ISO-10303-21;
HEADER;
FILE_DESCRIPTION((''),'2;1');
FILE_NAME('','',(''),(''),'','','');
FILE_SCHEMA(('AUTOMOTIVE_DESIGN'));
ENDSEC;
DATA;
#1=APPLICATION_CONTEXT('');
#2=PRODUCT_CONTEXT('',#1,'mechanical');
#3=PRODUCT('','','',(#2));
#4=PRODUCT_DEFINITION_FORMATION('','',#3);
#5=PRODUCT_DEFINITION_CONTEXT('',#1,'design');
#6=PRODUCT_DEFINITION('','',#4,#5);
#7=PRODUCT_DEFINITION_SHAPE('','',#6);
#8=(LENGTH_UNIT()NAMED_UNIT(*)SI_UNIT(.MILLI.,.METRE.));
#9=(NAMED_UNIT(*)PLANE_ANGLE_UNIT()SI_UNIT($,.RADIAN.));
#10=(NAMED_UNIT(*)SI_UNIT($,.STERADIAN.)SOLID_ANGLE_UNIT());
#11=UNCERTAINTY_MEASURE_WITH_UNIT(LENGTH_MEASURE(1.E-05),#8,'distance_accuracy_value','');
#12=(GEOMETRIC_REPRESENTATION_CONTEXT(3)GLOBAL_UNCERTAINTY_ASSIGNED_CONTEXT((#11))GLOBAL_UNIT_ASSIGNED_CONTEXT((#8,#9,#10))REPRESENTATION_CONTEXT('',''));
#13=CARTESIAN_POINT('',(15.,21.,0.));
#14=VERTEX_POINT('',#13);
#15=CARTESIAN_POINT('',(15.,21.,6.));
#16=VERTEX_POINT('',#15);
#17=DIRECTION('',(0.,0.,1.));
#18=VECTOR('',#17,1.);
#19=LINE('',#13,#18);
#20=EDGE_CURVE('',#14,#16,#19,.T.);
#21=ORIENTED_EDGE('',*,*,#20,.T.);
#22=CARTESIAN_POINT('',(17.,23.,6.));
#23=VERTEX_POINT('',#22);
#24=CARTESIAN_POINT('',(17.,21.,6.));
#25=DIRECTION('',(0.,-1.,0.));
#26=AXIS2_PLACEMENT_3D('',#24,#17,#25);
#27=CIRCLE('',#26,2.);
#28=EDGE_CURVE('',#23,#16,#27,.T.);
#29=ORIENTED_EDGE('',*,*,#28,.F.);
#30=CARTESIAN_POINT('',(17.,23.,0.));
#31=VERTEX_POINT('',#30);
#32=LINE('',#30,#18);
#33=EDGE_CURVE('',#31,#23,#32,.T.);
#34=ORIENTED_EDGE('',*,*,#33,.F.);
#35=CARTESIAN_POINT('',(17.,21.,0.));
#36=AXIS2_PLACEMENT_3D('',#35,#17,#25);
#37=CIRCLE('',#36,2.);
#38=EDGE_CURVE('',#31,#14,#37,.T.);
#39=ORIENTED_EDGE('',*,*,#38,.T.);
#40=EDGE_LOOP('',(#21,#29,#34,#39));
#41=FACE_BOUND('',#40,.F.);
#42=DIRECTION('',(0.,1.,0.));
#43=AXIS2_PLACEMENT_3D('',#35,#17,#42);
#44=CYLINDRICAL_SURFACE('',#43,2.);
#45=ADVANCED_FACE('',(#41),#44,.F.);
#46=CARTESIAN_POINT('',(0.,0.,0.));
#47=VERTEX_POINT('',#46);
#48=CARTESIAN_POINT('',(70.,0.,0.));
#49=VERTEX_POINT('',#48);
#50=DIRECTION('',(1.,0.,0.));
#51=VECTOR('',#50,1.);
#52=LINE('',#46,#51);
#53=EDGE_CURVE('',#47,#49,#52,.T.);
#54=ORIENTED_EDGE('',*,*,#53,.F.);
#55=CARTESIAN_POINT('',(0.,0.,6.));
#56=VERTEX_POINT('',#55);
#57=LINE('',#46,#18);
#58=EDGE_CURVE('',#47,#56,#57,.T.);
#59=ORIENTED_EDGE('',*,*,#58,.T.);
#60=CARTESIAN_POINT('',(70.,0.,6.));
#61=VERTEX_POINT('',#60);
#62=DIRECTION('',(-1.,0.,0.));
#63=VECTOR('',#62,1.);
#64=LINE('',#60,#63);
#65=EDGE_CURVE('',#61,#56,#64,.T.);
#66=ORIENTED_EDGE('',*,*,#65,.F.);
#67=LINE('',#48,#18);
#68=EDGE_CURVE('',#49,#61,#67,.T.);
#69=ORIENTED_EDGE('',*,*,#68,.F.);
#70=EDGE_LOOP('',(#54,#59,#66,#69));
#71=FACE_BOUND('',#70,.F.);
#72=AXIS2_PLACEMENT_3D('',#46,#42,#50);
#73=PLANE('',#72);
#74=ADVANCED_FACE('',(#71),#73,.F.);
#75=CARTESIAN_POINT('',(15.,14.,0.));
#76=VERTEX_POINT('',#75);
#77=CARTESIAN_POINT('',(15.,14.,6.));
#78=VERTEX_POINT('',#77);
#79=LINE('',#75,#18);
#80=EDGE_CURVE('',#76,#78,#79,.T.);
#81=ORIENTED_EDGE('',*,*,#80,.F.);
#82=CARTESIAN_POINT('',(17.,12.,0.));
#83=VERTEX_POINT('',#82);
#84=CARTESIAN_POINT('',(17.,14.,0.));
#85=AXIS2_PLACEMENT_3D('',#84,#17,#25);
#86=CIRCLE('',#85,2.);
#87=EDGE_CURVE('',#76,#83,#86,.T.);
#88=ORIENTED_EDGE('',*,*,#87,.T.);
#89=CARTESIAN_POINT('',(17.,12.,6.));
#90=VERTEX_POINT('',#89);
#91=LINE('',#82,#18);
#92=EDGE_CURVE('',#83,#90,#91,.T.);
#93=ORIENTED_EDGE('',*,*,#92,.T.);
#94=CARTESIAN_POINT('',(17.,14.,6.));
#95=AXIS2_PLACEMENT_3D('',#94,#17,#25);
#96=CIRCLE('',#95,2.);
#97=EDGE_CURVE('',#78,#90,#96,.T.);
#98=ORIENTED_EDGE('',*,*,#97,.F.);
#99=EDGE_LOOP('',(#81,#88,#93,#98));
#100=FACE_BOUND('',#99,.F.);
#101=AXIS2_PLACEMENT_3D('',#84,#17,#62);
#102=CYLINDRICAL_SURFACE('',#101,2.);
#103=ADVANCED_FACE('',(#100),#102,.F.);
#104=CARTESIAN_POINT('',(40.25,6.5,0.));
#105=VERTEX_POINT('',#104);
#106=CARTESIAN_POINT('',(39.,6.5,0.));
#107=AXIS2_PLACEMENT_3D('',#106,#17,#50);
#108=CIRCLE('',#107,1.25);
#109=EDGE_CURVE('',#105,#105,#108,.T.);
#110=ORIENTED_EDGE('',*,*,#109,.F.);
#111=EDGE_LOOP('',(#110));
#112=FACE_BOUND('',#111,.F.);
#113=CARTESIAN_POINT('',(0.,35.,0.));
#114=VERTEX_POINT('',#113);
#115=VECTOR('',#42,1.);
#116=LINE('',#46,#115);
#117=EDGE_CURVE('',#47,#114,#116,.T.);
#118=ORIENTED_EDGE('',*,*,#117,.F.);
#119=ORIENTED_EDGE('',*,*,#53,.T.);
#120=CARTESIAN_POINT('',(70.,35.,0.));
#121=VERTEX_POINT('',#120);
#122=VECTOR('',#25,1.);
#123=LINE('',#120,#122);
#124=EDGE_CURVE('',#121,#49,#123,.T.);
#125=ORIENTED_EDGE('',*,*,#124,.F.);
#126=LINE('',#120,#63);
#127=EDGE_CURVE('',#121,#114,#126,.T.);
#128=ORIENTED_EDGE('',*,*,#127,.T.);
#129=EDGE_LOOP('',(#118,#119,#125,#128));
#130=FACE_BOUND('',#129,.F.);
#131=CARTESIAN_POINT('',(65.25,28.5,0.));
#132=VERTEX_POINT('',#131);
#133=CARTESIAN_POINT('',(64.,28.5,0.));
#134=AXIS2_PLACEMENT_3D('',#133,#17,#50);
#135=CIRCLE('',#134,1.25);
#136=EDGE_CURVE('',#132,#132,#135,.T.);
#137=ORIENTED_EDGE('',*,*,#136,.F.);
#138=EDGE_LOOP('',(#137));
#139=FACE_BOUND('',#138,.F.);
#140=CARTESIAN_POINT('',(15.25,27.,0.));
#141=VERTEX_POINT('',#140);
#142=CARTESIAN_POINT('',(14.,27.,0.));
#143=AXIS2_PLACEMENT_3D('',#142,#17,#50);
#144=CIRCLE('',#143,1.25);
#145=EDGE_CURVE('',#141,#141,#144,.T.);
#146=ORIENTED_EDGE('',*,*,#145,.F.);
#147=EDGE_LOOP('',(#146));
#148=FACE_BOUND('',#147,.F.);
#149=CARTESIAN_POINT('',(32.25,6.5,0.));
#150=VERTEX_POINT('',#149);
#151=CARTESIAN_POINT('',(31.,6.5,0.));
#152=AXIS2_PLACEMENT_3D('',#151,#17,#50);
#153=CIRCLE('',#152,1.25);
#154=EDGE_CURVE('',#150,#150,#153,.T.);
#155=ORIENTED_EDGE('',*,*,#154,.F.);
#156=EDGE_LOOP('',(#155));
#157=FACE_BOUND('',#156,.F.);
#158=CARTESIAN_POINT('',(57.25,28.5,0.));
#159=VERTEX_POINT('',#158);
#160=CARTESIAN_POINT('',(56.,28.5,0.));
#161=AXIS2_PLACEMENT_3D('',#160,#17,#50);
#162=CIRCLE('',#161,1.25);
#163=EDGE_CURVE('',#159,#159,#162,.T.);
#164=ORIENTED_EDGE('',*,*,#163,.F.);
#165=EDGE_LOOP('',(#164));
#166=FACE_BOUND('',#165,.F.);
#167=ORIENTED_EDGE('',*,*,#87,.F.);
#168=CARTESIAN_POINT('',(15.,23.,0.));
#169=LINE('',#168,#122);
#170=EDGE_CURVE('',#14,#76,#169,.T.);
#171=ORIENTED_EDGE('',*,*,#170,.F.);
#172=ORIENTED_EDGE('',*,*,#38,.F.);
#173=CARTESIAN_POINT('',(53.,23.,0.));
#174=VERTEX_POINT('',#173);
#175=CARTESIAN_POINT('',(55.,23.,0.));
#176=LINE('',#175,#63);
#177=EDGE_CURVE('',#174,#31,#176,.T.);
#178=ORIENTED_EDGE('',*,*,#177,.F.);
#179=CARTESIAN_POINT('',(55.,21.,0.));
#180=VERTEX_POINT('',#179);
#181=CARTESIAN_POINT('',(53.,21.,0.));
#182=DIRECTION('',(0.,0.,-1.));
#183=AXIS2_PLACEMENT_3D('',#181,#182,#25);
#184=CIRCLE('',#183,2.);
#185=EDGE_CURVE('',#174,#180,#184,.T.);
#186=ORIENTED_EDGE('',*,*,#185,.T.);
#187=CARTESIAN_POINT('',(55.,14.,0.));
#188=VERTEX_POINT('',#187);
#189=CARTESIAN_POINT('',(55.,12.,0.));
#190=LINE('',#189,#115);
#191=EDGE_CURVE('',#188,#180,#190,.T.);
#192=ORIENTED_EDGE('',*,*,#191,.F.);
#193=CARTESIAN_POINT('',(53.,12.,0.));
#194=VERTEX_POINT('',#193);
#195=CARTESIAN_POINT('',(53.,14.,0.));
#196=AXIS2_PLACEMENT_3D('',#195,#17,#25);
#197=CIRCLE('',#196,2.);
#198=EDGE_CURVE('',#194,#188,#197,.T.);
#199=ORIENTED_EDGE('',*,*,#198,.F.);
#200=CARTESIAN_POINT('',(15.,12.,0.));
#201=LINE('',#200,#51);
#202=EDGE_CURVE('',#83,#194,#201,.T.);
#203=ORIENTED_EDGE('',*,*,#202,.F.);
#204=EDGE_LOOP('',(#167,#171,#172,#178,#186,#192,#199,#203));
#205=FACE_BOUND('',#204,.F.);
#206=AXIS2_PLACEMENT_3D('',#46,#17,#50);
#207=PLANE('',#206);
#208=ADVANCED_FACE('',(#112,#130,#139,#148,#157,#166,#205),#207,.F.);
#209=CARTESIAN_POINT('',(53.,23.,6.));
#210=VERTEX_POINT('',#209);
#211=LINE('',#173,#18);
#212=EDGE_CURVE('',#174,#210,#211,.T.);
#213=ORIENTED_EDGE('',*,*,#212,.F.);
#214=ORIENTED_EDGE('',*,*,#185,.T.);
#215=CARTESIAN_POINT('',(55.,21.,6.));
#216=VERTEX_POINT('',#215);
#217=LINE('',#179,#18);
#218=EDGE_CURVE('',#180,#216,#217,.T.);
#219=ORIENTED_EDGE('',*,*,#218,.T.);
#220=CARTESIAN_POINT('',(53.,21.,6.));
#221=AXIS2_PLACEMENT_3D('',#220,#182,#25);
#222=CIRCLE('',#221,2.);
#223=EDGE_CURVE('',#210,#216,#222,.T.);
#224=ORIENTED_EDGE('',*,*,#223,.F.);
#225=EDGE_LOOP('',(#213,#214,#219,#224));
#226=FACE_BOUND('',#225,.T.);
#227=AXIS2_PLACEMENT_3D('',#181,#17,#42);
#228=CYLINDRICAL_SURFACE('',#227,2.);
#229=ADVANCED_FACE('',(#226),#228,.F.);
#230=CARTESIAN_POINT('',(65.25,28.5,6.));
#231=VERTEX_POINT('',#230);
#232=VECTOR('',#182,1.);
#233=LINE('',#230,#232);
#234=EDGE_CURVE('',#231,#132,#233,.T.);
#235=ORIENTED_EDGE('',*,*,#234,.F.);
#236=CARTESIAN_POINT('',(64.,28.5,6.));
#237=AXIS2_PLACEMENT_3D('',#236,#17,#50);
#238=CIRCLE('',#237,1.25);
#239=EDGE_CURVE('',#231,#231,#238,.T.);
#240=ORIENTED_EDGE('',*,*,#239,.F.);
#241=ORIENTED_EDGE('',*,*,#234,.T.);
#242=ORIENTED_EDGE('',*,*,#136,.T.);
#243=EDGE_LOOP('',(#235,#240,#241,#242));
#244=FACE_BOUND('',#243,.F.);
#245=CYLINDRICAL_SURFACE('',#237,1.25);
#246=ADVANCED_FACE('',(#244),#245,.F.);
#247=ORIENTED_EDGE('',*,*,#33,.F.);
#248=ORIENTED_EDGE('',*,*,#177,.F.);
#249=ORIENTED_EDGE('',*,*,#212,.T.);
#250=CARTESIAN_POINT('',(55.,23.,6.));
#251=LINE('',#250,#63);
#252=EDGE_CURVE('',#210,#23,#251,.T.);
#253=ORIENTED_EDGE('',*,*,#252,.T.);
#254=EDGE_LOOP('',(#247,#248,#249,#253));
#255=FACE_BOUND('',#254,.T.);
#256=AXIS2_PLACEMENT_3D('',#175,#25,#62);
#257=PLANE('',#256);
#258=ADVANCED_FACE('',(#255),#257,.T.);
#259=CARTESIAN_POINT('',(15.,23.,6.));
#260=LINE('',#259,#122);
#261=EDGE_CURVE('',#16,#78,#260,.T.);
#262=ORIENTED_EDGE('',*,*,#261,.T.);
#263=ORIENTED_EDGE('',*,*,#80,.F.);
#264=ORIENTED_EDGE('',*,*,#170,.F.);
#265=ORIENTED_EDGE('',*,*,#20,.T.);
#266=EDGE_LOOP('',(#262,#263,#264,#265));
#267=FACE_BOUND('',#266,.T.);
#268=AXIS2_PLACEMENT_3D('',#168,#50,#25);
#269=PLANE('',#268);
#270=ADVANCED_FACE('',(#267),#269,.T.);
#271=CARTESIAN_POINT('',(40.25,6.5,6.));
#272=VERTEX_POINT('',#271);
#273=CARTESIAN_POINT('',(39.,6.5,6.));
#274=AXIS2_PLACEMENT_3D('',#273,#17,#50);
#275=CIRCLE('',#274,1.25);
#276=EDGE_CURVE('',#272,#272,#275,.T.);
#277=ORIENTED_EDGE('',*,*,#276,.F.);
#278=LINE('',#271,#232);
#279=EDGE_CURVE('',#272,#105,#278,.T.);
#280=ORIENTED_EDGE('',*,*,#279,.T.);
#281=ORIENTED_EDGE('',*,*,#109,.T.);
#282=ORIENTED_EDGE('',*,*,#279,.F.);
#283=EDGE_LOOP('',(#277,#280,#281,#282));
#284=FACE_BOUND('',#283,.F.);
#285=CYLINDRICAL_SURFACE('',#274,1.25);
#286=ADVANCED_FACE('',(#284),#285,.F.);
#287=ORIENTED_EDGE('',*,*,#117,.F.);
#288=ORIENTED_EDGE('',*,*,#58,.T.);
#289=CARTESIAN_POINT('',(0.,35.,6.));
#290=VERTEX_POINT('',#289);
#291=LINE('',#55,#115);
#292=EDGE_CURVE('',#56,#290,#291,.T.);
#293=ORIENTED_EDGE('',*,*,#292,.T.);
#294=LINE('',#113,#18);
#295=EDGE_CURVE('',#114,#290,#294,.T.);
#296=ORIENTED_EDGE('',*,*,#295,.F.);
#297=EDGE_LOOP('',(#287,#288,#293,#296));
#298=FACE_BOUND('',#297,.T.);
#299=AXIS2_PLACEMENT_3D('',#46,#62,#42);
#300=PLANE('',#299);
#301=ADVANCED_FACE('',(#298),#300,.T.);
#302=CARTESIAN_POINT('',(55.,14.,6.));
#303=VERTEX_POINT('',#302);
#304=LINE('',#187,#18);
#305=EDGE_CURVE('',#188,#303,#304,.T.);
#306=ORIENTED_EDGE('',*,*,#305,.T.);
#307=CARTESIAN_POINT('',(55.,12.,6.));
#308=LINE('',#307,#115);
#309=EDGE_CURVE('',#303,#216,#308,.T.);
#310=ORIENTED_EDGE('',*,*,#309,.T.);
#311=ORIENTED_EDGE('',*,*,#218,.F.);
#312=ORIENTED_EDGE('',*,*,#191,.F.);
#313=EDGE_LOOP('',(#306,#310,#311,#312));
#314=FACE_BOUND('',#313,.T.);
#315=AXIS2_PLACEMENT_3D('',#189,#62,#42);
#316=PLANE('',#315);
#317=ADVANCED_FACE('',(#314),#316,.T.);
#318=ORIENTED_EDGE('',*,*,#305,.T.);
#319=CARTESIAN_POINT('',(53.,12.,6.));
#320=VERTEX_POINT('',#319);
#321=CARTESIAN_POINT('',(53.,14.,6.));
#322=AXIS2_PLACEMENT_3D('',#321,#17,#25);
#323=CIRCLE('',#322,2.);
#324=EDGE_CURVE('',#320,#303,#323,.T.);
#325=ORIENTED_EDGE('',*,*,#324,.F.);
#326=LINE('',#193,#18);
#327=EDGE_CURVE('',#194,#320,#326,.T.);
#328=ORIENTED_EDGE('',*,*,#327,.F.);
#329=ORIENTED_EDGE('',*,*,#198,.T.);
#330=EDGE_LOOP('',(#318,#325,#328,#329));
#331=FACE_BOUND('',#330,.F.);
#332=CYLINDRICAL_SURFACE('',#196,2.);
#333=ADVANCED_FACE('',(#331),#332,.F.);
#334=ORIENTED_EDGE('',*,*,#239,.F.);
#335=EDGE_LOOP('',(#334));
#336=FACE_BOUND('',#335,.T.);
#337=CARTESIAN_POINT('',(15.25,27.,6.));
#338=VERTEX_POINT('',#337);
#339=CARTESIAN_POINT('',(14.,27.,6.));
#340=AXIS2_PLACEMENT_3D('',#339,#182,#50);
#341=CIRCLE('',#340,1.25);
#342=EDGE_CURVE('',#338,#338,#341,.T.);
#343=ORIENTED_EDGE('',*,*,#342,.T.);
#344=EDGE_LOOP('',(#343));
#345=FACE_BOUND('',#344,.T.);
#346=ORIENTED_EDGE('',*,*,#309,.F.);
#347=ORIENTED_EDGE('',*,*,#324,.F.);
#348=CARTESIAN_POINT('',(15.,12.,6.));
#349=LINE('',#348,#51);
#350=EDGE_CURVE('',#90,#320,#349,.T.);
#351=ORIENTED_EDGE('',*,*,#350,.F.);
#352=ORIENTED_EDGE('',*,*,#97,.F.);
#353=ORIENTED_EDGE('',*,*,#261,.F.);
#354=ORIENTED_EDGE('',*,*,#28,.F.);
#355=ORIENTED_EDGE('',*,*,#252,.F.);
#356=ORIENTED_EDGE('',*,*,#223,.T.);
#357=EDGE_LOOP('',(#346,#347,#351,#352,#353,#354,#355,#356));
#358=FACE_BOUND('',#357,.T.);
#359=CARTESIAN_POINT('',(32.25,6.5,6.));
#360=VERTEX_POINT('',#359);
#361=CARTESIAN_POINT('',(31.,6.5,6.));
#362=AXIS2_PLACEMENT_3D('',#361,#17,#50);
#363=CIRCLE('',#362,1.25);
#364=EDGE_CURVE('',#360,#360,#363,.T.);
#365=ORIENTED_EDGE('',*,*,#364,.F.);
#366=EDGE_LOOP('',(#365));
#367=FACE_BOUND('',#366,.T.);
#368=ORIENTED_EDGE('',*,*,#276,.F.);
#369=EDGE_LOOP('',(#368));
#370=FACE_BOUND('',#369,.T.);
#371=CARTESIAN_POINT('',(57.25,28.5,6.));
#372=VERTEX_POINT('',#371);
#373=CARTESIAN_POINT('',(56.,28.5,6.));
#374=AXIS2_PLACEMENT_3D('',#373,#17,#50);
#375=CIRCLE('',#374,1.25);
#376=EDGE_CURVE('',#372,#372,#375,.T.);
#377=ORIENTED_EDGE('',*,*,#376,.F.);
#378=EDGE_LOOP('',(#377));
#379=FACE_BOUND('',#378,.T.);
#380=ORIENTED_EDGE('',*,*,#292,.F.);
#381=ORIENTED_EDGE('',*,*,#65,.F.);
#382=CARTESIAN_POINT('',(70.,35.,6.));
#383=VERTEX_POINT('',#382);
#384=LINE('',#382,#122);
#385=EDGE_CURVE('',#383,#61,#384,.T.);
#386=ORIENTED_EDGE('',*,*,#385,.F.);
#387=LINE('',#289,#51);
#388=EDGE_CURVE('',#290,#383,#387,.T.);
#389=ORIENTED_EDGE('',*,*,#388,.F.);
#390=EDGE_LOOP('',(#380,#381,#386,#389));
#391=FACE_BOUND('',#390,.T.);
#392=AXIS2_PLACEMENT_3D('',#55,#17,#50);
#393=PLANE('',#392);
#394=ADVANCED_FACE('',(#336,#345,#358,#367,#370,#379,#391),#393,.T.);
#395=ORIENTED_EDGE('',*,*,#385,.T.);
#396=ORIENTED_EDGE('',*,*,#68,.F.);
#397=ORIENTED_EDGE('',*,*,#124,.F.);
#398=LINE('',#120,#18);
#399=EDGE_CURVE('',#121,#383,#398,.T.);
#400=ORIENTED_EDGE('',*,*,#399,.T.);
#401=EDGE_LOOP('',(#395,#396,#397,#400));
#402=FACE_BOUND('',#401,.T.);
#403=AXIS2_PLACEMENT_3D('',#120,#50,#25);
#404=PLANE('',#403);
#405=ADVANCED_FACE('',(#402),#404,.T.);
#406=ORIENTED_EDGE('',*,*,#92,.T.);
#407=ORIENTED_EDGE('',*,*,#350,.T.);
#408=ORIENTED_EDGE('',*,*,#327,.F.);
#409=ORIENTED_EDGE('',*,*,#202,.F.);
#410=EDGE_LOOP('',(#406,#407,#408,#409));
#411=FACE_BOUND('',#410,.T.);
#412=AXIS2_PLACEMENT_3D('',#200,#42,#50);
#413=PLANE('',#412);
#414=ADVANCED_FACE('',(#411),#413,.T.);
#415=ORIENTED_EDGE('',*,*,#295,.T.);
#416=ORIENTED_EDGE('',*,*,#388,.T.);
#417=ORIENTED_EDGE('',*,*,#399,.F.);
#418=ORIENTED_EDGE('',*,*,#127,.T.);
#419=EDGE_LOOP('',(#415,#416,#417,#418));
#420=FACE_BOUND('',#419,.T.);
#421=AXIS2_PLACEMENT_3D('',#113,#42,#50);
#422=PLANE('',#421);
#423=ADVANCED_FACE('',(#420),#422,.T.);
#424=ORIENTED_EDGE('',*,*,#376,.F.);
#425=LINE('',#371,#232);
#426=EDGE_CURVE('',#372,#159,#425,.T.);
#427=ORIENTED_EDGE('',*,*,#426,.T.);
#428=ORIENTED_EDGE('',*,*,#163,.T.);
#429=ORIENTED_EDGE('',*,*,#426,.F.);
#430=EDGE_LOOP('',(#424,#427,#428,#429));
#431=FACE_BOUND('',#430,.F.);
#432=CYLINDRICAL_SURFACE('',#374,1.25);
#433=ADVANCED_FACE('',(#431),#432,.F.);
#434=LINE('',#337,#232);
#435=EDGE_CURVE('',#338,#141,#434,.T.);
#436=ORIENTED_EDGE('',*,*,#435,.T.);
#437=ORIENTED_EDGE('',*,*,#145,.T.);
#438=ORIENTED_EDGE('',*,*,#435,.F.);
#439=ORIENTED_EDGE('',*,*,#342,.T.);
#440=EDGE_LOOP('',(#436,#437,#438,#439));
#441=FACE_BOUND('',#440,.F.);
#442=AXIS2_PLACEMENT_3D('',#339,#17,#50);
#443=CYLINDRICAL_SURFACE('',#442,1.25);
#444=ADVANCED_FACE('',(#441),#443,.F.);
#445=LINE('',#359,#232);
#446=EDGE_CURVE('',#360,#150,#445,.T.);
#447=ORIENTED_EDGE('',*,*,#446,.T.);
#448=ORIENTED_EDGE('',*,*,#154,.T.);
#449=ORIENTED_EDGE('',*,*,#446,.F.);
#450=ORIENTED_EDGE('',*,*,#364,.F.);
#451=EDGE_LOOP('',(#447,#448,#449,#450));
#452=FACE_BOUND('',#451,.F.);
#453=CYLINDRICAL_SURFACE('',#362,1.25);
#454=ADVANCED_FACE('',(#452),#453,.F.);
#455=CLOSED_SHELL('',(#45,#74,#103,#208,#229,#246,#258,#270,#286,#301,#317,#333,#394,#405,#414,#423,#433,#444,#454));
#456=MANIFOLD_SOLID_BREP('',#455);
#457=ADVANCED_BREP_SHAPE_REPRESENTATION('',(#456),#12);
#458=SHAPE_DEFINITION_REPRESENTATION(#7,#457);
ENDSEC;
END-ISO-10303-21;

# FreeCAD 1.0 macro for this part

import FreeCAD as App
import Part
import Sketcher

V = App.Vector


def edges_at(feature, points):
    """Names of the edges that pass closest to the given points."""
    edges = feature.Shape.Edges
    near = lambda p: min(range(len(edges)), key=lambda i: edges[i].distToShape(Part.Vertex(*p))[0])
    return sorted({f"Edge{near(p) + 1}" for p in points})

doc = App.newDocument("Part")
body = doc.addObject("PartDesign::Body", "Body")

sketch1 = body.newObject("Sketcher::SketchObject", "Sketch")
sketch1.AttachmentSupport = (doc.getObject("XY_Plane"), [""])
sketch1.MapMode = "FlatFace"
sketch1.addGeometry(Part.LineSegment(V(0, 35, 0), V(0, 0, 0)), False)
sketch1.addGeometry(Part.LineSegment(V(0, 0, 0), V(70, 0, 0)), False)
sketch1.addGeometry(Part.LineSegment(V(70, 0, 0), V(70, 35, 0)), False)
sketch1.addGeometry(Part.LineSegment(V(70, 35, 0), V(0, 35, 0)), False)
sketch1.addConstraint(Sketcher.Constraint("Coincident", 0, 2, 1, 1))
sketch1.addConstraint(Sketcher.Constraint("Coincident", 1, 2, 2, 1))
sketch1.addConstraint(Sketcher.Constraint("Coincident", 2, 2, 3, 1))
sketch1.addConstraint(Sketcher.Constraint("Coincident", 3, 2, 0, 1))
sketch1.addConstraint(Sketcher.Constraint("Vertical", 0))
sketch1.addConstraint(Sketcher.Constraint("Horizontal", 1))
sketch1.addConstraint(Sketcher.Constraint("Vertical", 2))
sketch1.addConstraint(Sketcher.Constraint("Horizontal", 3))
sketch1.addConstraint(Sketcher.Constraint("Coincident", 0, 2, -1, 1))
sketch1.addConstraint(Sketcher.Constraint("DistanceX", 1, 1, 1, 2, 70.0))
sketch1.addConstraint(Sketcher.Constraint("DistanceY", 0, 2, 0, 1, 35.0))
pad1 = body.newObject("PartDesign::Pad", "Pad")
pad1.Profile = sketch1
pad1.Length = 6

sketch2 = body.newObject("Sketcher::SketchObject", "Sketch001")
sketch2.AttachmentSupport = (doc.getObject("XY_Plane"), [""])
sketch2.MapMode = "FlatFace"
sketch2.AttachmentOffset = App.Placement(V(0, 0, 6), App.Rotation())
sketch2.addGeometry(Part.Circle(V(39, 6.5, 0), V(0, 0, 1), 1.25), False)
sketch2.addGeometry(Part.Circle(V(31, 6.5, 0), V(0, 0, 1), 1.25), False)
sketch2.addConstraint(Sketcher.Constraint("Equal", 0, 1))
sketch2.addConstraint(Sketcher.Constraint("Horizontal", 0, 3, 1, 3))
sketch2.addConstraint(Sketcher.Constraint("Diameter", 0, 2.5))
sketch2.addConstraint(Sketcher.Constraint("DistanceX", -1, 1, 0, 3, 39.0))
sketch2.addConstraint(Sketcher.Constraint("DistanceX", -1, 1, 1, 3, 31.0))
sketch2.addConstraint(Sketcher.Constraint("DistanceY", -1, 1, 0, 3, 6.5))
pocket1 = body.newObject("PartDesign::Pocket", "Pocket")
pocket1.Profile = sketch2
pocket1.Length = 6

sketch3 = body.newObject("Sketcher::SketchObject", "Sketch002")
sketch3.AttachmentSupport = (doc.getObject("XY_Plane"), [""])
sketch3.MapMode = "FlatFace"
sketch3.AttachmentOffset = App.Placement(V(0, 0, 6), App.Rotation())
sketch3.addGeometry(Part.Circle(V(56, 28.5, 0), V(0, 0, 1), 1.25), False)
sketch3.addGeometry(Part.Circle(V(64, 28.5, 0), V(0, 0, 1), 1.25), False)
sketch3.addGeometry(Part.Circle(V(14, 27, 0), V(0, 0, 1), 1.25), False)
sketch3.addConstraint(Sketcher.Constraint("Equal", 0, 1))
sketch3.addConstraint(Sketcher.Constraint("Equal", 1, 2))
sketch3.addConstraint(Sketcher.Constraint("Horizontal", 0, 3, 1, 3))
sketch3.addConstraint(Sketcher.Constraint("Diameter", 0, 2.5))
sketch3.addConstraint(Sketcher.Constraint("DistanceX", -1, 1, 0, 3, 56.0))
sketch3.addConstraint(Sketcher.Constraint("DistanceX", -1, 1, 1, 3, 64.0))
sketch3.addConstraint(Sketcher.Constraint("DistanceX", -1, 1, 2, 3, 14.0))
sketch3.addConstraint(Sketcher.Constraint("DistanceY", -1, 1, 2, 3, 27.0))
sketch3.addConstraint(Sketcher.Constraint("DistanceY", -1, 1, 0, 3, 28.5))
pocket2 = body.newObject("PartDesign::Pocket", "Pocket001")
pocket2.Profile = sketch3
pocket2.Length = 6

sketch4 = body.newObject("Sketcher::SketchObject", "Sketch003")
sketch4.AttachmentSupport = (doc.getObject("XY_Plane"), [""])
sketch4.MapMode = "FlatFace"
sketch4.addGeometry(Part.LineSegment(V(15, 23, 0), V(55, 23, 0)), False)
sketch4.addGeometry(Part.LineSegment(V(55, 23, 0), V(55, 12, 0)), False)
sketch4.addGeometry(Part.LineSegment(V(55, 12, 0), V(15, 12, 0)), False)
sketch4.addGeometry(Part.LineSegment(V(15, 12, 0), V(15, 23, 0)), False)
sketch4.addConstraint(Sketcher.Constraint("Coincident", 0, 2, 1, 1))
sketch4.addConstraint(Sketcher.Constraint("Coincident", 1, 2, 2, 1))
sketch4.addConstraint(Sketcher.Constraint("Coincident", 2, 2, 3, 1))
sketch4.addConstraint(Sketcher.Constraint("Coincident", 3, 2, 0, 1))
sketch4.addConstraint(Sketcher.Constraint("Horizontal", 0))
sketch4.addConstraint(Sketcher.Constraint("Vertical", 1))
sketch4.addConstraint(Sketcher.Constraint("Horizontal", 2))
sketch4.addConstraint(Sketcher.Constraint("Vertical", 3))
sketch4.addConstraint(Sketcher.Constraint("DistanceY", -1, 1, 1, 2, 12.0))
sketch4.addConstraint(Sketcher.Constraint("DistanceX", -1, 1, 2, 2, 15.0))
sketch4.addConstraint(Sketcher.Constraint("DistanceX", 0, 1, 0, 2, 40.0))
sketch4.addConstraint(Sketcher.Constraint("DistanceY", 1, 2, 1, 1, 11.0))
pocket3 = body.newObject("PartDesign::Pocket", "Pocket002")
pocket3.Profile = sketch4
pocket3.Length = 6
pocket3.Reversed = True
doc.recompute()

fillet = body.newObject("PartDesign::Fillet", "Fillet")
fillet.Base = (pocket3, edges_at(pocket3, [
    (55, 23, 3),
    (15, 23, 3),
    (15, 12, 3),
    (55, 12, 3),
]))
fillet.Radius = 2

doc.recompute()
